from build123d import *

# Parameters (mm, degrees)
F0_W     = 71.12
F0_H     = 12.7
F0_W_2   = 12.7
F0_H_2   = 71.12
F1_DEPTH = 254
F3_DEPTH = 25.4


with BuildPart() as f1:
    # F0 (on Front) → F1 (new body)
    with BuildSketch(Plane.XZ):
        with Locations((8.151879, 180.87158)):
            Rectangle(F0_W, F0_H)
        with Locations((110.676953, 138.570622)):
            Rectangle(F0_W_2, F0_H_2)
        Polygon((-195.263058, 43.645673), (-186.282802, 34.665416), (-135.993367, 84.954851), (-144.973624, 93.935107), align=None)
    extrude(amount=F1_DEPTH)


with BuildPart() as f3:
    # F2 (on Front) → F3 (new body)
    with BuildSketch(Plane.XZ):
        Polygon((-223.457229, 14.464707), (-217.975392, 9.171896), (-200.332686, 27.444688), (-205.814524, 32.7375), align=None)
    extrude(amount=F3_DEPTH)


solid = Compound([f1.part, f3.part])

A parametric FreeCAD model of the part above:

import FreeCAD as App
import Part
import Sketcher

V = App.Vector
Q = App.Units.Quantity

doc = App.newDocument("Part")
body = doc.addObject("PartDesign::Body", "Body")
body.AllowCompound = True

# Sketch on XZ plane
sketch1 = body.newObject("Sketcher::SketchObject", "Sketch")
sketch1.AttachmentSupport = (doc.getObject("XZ_Plane"), [""])
sketch1.MapMode = "FlatFace"
sketch1.addGeometry([
    Part.LineSegment(V(-27, 187, 0), V(-27, 175, 0)),  # 0
    Part.LineSegment(V(-27, 175, 0), V(44, 175, 0)),  # 1
    Part.LineSegment(V(44, 175, 0), V(44, 187, 0)),  # 2
    Part.LineSegment(V(44, 187, 0), V(-27, 187, 0)),  # 3
    Part.LineSegment(V(104, 174, 0), V(104, 103, 0)),  # 4
    Part.LineSegment(V(104, 103, 0), V(117, 103, 0)),  # 5
    Part.LineSegment(V(117, 103, 0), V(117, 174, 0)),  # 6
    Part.LineSegment(V(117, 174, 0), V(104, 174, 0)),  # 7
    Part.LineSegment(V(-195, 44, 0), V(-186, 35, 0)),  # 8
    Part.LineSegment(V(-186, 35, 0), V(-136, 85, 0)),  # 9
    Part.LineSegment(V(-136, 85, 0), V(-145, 94, 0)),  # 10
    Part.LineSegment(V(-145, 94, 0), V(-195, 44, 0)),  # 11
], False)
sketch1.addConstraint([
    Sketcher.Constraint("Coincident", 0, 2, 1, 1),
    Sketcher.Constraint("Coincident", 1, 2, 2, 1),
    Sketcher.Constraint("Coincident", 2, 2, 3, 1),
    Sketcher.Constraint("Coincident", 3, 2, 0, 1),
    Sketcher.Constraint("Coincident", 4, 2, 5, 1),
    Sketcher.Constraint("Coincident", 5, 2, 6, 1),
    Sketcher.Constraint("Coincident", 6, 2, 7, 1),
    Sketcher.Constraint("Coincident", 7, 2, 4, 1),
    Sketcher.Constraint("Coincident", 8, 2, 9, 1),
    Sketcher.Constraint("Coincident", 9, 2, 10, 1),
    Sketcher.Constraint("Coincident", 10, 2, 11, 1),
    Sketcher.Constraint("Coincident", 11, 2, 8, 1),
    Sketcher.Constraint("Vertical", 0),
    Sketcher.Constraint("Horizontal", 1),
    Sketcher.Constraint("Vertical", 2),
    Sketcher.Constraint("Horizontal", 3),
    Sketcher.Constraint("Vertical", 4),
    Sketcher.Constraint("Horizontal", 5),
    Sketcher.Constraint("Vertical", 6),
    Sketcher.Constraint("Horizontal", 7),
    Sketcher.Constraint("Perpendicular", 8, 9),
    Sketcher.Constraint("Perpendicular", 9, 10),
    Sketcher.Constraint("Perpendicular", 10, 11),
    Sketcher.Constraint("Equal", 7, 0),
    Sketcher.Constraint("Equal", 3, 4),
    Sketcher.Constraint("DistanceX", 1, 1, 1, 2, Q("2.8 in")),
    Sketcher.Constraint("DistanceX", 5, 1, 5, 2, Q("0.5 in")),
    Sketcher.Constraint("Angle", 8, Q("-45.000003 deg")),
    Sketcher.Constraint("Distance", 8, Q("0.5 in")),
    Sketcher.Constraint("Distance", 9, Q("2.8 in")),
    Sketcher.Constraint("DistanceX", 8, 2, -1, 1, Q("186.282802 mm")),
    Sketcher.Constraint("DistanceX", 0, 2, -1, 1, Q("27.408121 mm")),
    Sketcher.Constraint("DistanceY", -1, 1, 0, 2, Q("174.52158 mm")),
    Sketcher.Constraint("DistanceY", -1, 1, 4, 2, Q("103.010622 mm")),
    Sketcher.Constraint("DistanceY", -1, 1, 9, 2, Q("84.954851 mm")),
    Sketcher.Constraint("DistanceX", -1, 1, 4, 2, Q("104.326953 mm")),
])
pad1 = body.newObject("PartDesign::Pad", "Pad")
pad1.Profile = sketch1
pad1.Length = Q("10 in")
body2 = doc.addObject("PartDesign::Body", "Body001")

# Sketch on XZ plane
sketch2 = body2.newObject("Sketcher::SketchObject", "Sketch001")
sketch2.AttachmentSupport = (doc.getObject("XZ_Plane001"), [""])
sketch2.MapMode = "FlatFace"
sketch2.addGeometry([
    Part.LineSegment(V(-223, 14, 0), V(-218, 9, 0)),
    Part.LineSegment(V(-218, 9, 0), V(-200, 27, 0)),
    Part.LineSegment(V(-200, 27, 0), V(-206, 33, 0)),
    Part.LineSegment(V(-206, 33, 0), V(-223, 14, 0)),
], False)
sketch2.addConstraint([
    Sketcher.Constraint("Coincident", 0, 2, 1, 1),
    Sketcher.Constraint("Coincident", 1, 2, 2, 1),
    Sketcher.Constraint("Coincident", 2, 2, 3, 1),
    Sketcher.Constraint("Coincident", 3, 2, 0, 1),
    Sketcher.Constraint("Perpendicular", 0, 1),
    Sketcher.Constraint("Perpendicular", 1, 2),
    Sketcher.Constraint("Perpendicular", 2, 3),
    Sketcher.Constraint("Distance", 1, Q("1 in")),
    Sketcher.Constraint("Distance", 0, Q("0.3 in")),
    Sketcher.Constraint("DistanceY", -1, 1, 2, 2, Q("32.7375 mm")),
    Sketcher.Constraint("DistanceX", 0, 2, -1, 1, Q("217.975392 mm")),
    Sketcher.Constraint("DistanceX", 3, 2, -1, 1, Q("223.457229 mm")),
])
pad2 = body2.newObject("PartDesign::Pad", "Pad001")
pad2.Profile = sketch2
pad2.Length = Q("1 in")

doc.recompute()
